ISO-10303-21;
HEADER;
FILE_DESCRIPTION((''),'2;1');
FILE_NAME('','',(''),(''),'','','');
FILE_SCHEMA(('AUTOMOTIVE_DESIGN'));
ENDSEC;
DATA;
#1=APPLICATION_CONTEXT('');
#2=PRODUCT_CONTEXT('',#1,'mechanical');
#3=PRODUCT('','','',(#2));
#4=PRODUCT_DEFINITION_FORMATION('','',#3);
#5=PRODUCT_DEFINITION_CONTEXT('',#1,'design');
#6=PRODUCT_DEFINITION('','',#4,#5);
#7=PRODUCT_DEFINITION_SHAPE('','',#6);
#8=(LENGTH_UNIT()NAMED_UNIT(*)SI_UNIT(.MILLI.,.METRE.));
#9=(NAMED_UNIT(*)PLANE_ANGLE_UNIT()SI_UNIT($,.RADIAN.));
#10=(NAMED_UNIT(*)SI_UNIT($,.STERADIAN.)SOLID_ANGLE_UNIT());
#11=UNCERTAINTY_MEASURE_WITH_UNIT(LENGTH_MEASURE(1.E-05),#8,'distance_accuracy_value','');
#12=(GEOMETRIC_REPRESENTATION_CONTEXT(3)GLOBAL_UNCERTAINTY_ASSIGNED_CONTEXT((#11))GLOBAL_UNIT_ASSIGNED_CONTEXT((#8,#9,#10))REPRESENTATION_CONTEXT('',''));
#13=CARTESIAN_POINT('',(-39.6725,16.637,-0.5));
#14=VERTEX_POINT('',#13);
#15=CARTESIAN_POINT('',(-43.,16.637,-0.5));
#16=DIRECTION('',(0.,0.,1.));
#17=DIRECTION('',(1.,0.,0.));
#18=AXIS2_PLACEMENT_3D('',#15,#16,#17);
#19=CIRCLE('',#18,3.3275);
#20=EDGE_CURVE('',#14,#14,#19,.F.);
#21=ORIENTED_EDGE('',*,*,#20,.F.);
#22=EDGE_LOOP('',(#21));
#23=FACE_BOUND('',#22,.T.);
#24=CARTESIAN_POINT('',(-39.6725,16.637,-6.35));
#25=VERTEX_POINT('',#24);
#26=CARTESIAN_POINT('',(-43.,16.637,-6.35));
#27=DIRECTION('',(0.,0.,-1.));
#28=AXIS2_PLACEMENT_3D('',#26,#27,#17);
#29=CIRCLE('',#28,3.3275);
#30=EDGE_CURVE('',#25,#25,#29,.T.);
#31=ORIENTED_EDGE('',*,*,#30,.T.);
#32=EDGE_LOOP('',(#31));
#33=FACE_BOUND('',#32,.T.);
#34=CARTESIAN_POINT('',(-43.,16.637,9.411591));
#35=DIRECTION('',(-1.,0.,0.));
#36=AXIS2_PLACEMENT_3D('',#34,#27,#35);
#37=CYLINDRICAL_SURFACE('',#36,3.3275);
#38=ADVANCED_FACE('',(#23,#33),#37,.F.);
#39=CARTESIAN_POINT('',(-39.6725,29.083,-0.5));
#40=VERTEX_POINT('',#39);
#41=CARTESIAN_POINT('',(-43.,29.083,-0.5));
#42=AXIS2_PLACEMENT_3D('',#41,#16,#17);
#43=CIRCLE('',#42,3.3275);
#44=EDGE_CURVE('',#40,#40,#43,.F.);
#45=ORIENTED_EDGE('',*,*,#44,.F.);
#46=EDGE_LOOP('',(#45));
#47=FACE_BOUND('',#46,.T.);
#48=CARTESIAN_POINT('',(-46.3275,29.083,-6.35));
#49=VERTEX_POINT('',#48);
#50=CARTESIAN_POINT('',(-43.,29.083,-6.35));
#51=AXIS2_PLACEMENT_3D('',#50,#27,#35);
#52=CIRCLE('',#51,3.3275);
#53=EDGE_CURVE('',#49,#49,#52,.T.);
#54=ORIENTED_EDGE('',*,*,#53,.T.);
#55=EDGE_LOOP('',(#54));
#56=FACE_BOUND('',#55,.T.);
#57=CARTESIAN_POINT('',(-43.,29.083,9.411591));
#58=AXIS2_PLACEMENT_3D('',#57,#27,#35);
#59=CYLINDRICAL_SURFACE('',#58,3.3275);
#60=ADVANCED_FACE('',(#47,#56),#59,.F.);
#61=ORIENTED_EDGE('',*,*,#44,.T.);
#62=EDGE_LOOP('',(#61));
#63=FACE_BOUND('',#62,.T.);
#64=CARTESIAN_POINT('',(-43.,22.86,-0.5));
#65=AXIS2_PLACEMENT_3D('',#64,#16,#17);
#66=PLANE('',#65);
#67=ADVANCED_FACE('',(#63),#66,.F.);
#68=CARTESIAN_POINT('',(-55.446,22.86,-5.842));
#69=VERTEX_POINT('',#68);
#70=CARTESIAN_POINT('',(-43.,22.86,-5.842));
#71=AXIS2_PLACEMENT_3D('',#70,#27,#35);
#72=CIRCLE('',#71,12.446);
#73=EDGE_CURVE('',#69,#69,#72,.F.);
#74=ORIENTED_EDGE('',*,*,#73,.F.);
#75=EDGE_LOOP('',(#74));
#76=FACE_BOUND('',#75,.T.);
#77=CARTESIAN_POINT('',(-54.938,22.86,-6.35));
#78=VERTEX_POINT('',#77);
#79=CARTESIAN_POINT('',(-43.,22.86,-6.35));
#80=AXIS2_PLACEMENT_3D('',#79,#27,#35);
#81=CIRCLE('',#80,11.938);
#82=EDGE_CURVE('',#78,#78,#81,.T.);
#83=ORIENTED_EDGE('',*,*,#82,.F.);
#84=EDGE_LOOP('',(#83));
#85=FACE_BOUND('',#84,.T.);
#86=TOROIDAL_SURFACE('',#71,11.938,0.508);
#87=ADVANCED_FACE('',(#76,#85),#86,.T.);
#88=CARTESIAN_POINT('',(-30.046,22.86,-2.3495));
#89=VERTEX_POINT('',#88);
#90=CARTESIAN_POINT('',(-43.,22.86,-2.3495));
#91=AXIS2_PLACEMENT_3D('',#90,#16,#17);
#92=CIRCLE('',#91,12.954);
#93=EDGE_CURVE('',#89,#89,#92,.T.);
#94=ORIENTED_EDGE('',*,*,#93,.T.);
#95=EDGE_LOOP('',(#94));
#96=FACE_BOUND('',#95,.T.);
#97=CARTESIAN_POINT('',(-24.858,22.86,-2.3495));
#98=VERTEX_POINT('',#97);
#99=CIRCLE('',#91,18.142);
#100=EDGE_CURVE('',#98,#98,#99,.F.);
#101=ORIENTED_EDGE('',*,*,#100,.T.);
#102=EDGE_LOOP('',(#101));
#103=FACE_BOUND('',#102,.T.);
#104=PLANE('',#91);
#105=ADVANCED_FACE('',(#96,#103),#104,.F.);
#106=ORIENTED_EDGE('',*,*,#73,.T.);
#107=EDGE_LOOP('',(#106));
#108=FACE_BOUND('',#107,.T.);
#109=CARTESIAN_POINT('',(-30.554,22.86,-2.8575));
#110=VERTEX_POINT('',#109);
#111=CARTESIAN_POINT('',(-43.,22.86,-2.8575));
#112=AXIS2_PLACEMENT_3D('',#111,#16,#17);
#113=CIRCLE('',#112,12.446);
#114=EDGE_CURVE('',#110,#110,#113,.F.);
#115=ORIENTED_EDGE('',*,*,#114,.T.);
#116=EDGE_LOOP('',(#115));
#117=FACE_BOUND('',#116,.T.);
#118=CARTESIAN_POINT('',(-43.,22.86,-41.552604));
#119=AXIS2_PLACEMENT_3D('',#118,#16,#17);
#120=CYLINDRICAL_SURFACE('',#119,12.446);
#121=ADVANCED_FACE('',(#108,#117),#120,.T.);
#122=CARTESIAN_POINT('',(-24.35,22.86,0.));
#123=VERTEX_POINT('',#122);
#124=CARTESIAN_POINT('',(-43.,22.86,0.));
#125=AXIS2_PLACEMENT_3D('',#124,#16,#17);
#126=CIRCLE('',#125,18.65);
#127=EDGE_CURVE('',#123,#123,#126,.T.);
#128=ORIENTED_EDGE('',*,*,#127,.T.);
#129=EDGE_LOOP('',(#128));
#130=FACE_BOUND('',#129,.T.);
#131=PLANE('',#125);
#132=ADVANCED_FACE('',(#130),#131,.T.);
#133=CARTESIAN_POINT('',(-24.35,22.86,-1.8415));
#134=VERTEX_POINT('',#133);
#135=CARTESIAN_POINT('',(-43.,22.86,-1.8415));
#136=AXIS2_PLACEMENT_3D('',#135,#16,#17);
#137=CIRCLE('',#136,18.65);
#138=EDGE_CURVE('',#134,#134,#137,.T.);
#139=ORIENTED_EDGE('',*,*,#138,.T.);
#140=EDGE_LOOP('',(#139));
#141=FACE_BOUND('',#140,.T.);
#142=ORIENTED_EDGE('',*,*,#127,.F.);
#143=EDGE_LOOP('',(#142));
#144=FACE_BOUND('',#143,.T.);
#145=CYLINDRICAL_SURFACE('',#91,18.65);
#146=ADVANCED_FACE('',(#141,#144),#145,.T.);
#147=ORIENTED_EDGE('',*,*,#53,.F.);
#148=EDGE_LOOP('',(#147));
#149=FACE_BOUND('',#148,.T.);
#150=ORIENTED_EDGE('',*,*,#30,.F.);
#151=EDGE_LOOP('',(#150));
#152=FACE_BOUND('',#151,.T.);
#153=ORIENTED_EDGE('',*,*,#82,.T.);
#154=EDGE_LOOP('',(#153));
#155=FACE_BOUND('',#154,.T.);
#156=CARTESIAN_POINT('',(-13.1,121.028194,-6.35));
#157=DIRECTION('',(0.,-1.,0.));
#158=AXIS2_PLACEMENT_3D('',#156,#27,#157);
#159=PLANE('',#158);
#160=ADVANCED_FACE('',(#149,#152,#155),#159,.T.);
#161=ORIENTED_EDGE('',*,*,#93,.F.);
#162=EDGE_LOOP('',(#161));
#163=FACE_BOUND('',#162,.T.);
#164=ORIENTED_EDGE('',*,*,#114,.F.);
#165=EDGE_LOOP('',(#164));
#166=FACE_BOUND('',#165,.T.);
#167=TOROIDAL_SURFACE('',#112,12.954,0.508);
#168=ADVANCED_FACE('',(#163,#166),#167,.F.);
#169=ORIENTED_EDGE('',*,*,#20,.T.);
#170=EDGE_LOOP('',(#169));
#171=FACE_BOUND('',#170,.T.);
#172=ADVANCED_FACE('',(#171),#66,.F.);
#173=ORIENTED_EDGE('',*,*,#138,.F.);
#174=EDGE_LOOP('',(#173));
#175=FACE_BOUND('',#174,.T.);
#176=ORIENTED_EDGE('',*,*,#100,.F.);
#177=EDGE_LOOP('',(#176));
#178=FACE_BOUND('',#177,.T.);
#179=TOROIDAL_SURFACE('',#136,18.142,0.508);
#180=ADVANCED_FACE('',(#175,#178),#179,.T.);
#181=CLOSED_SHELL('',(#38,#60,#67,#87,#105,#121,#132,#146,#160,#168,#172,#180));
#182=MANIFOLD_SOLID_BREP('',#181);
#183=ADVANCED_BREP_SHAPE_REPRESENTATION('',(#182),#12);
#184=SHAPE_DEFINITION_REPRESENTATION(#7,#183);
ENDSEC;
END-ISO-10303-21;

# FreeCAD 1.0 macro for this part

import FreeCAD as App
import Part
import Sketcher

V = App.Vector
Q = App.Units.Quantity


def edges_at(feature, points):
    """Names of the edges that pass closest to the given points."""
    edges = feature.Shape.Edges
    near = lambda p: min(range(len(edges)), key=lambda i: edges[i].distToShape(Part.Vertex(*p))[0])
    return sorted({f"Edge{near(p) + 1}" for p in points})

doc = App.newDocument("Part")
params = doc.addObject("Spreadsheet::Sheet", "Params")
for row, (alias, value) in enumerate([
    ("pad1_length", "0.0925 in"),
    ("sketch2_diameter", "0.98 in"),
    ("pad2_length", "0.1575 in"),
    ("pocket1_length", "5.85 mm"),
    ("fillet_radius", "0.02 in"),
], start=1):
    params.set(f"A{row}", alias)
    params.set(f"B{row}", "=" + value)
    params.setAlias(f"B{row}", alias)

body = doc.addObject("PartDesign::Body", "Body")

# Sketch on XY plane
sketch1 = doc.addObject("Sketcher::SketchObject", "Sketch")
body.addObject(sketch1)
sketch1.AttachmentSupport = (doc.XY_Plane, [""])
sketch1.MapMode = "FlatFace"
sketch1.addGeometry(Part.Circle(V(-43, 23, 0), V(0, 0, 1), 19), False)
sketch1.addConstraint(Sketcher.Constraint("DistanceY", -1, 1, 0, 3, Q("0.9 in")))
sketch1.addConstraint(Sketcher.Constraint("Diameter", 0, Q("37.3 mm")))
sketch1.addConstraint(Sketcher.Constraint("DistanceX", 0, 3, -1, 1, Q("43 mm")))
pad1 = doc.addObject("PartDesign::Pad", "Pad")
body.addObject(pad1)
pad1.Profile = sketch1
pad1.setExpression("Length", "Params.pad1_length")
pad1.Reversed = True

# Sketch on XY plane
sketch2 = doc.addObject("Sketcher::SketchObject", "Sketch001")
body.addObject(sketch2)
sketch2.AttachmentSupport = (doc.XY_Plane, [""])
sketch2.MapMode = "FlatFace"
sketch2.AttachmentOffset = App.Placement(V(0, 0, -0.0925 * 25.4), App.Rotation())
sketch2.addGeometry(Part.Circle(V(-43, 23, 0), V(0, 0, 1), 12), False)
sketch2.addConstraint(Sketcher.Constraint("Diameter", 0, Q("0.98 in")))
sketch2.addConstraint(Sketcher.Constraint("DistanceY", -1, 1, 0, 3, Q("0.9 in")))
sketch2.addConstraint(Sketcher.Constraint("DistanceX", 0, 3, -1, 1, Q("43 mm")))
sketch2.setExpression("Constraints[0]", "Params.sketch2_diameter")
pad2 = doc.addObject("PartDesign::Pad", "Pad001")
body.addObject(pad2)
pad2.Profile = sketch2
pad2.setExpression("Length", "Params.pad2_length")
pad2.Reversed = True

# Sketch on XY plane
sketch3 = doc.addObject("Sketcher::SketchObject", "Sketch002")
body.addObject(sketch3)
sketch3.AttachmentSupport = (doc.XY_Plane, [""])
sketch3.MapMode = "FlatFace"
sketch3.AttachmentOffset = App.Placement(V(0, 0, -0.25 * 25.4), App.Rotation())
sketch3.addGeometry(Part.Circle(V(-43, 29.1, 0), V(0, 0, 1), 3.3), False)
sketch3.addGeometry(Part.Circle(V(-43, 16.6, 0), V(0, 0, 1), 3.3), False)
sketch3.addConstraint(Sketcher.Constraint("Equal", 0, 1))
sketch3.addConstraint(Sketcher.Constraint("Vertical", 0, 3, 1, 3))
sketch3.addConstraint(Sketcher.Constraint("Diameter", 0, Q("6.655 mm")))
sketch3.addConstraint(Sketcher.Constraint("DistanceY", 1, 3, 0, 3, Q("0.49 in")))
sketch3.addConstraint(Sketcher.Constraint("DistanceY", -1, 1, 0, 3, Q("1.145 in")))
sketch3.addConstraint(Sketcher.Constraint("DistanceX", 0, 3, -1, 1, Q("43 mm")))
pocket1 = doc.addObject("PartDesign::Pocket", "Pocket")
body.addObject(pocket1)
pocket1.Profile = sketch3
pocket1.setExpression("Length", "Params.pocket1_length")
pocket1.Reversed = True
doc.recompute()

fillet = doc.addObject("PartDesign::Fillet", "Fillet")
body.addObject(fillet)
fillet.Base = (pocket1, edges_at(pocket1, [(-61.65, 22.86, -2.349), (-55.446, 22.86, -2.349), (-55.446, 22.86, -6.35)]))
fillet.setExpression("Radius", "Params.fillet_radius")

doc.recompute()
